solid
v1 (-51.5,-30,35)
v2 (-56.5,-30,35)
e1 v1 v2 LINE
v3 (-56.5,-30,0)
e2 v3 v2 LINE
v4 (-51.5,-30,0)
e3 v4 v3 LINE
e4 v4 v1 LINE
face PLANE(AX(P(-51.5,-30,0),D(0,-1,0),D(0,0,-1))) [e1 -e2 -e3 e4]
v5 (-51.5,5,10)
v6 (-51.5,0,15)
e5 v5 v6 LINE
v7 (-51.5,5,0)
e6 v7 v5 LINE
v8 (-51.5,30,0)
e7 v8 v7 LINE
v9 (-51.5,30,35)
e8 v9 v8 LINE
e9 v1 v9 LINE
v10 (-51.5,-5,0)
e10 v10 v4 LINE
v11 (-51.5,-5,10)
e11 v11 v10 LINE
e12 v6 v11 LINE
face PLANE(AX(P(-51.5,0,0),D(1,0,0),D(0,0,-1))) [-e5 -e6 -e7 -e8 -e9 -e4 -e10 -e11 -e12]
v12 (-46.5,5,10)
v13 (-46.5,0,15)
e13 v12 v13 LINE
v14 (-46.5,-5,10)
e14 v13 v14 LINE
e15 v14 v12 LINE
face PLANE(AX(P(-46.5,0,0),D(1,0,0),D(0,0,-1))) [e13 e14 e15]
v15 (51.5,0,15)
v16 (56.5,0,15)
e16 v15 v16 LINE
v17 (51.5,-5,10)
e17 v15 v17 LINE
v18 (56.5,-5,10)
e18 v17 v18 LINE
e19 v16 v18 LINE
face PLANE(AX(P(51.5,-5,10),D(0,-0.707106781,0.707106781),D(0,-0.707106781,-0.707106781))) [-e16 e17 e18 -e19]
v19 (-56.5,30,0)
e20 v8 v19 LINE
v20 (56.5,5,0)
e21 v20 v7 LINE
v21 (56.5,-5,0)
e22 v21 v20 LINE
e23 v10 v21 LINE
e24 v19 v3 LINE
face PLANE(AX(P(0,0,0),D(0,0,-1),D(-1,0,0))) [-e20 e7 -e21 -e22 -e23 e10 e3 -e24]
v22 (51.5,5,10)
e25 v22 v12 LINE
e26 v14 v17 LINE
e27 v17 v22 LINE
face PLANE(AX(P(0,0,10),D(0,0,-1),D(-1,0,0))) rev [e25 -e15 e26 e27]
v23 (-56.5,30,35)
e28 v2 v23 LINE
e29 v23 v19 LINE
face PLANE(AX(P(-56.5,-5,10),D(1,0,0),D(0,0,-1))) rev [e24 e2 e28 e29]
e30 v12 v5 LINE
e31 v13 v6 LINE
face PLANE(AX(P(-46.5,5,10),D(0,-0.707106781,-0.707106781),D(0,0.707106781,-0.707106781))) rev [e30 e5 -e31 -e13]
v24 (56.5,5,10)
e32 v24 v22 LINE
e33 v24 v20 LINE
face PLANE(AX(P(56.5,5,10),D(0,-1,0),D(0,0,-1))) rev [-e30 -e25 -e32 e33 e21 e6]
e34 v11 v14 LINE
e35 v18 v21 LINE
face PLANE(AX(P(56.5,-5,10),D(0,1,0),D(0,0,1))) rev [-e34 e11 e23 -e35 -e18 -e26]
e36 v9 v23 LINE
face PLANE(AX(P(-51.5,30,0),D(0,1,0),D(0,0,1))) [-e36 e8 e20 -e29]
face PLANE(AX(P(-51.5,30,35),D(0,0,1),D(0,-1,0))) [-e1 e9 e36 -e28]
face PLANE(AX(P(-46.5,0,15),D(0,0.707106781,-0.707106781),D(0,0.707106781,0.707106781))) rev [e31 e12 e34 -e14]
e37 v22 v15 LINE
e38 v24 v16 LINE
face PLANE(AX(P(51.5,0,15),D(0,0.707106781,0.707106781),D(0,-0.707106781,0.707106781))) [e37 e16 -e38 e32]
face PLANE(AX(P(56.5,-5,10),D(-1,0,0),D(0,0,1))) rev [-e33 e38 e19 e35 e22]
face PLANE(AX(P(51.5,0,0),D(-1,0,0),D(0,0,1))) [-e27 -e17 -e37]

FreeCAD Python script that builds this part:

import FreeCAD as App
import Part
import Sketcher
from FreeCAD import Vector
Q = App.Units.Quantity

doc = App.newDocument("Part")
body = doc.addObject("PartDesign::Body", "Body")

sketch1 = body.newObject("Sketcher::SketchObject", "Sketch")
sketch1.AttachmentSupport = (doc.getObject("XY_Plane"), [""])
sketch1.MapMode = "FlatFace"
sketch1.addGeometry(Part.LineSegment(Vector(-56, -5, 0), Vector(56, -5, 0)), False)
sketch1.addGeometry(Part.LineSegment(Vector(56, -5, 0), Vector(56, 5, 0)), False)
sketch1.addGeometry(Part.LineSegment(Vector(56, 5, 0), Vector(-56, 5, 0)), False)
sketch1.addGeometry(Part.LineSegment(Vector(-56, 5, 0), Vector(-56, -5, 0)), False)
sketch1.addConstraint(Sketcher.Constraint("Coincident", 0, 2, 1, 1))
sketch1.addConstraint(Sketcher.Constraint("Coincident", 1, 2, 2, 1))
sketch1.addConstraint(Sketcher.Constraint("Coincident", 2, 2, 3, 1))
sketch1.addConstraint(Sketcher.Constraint("Coincident", 3, 2, 0, 1))
sketch1.addConstraint(Sketcher.Constraint("Horizontal", 0))
sketch1.addConstraint(Sketcher.Constraint("Vertical", 1))
sketch1.addConstraint(Sketcher.Constraint("Horizontal", 2))
sketch1.addConstraint(Sketcher.Constraint("Vertical", 3))
sketch1.addConstraint(Sketcher.Constraint("Symmetric", 0, 2, 2, 2, -1, 1))
sketch1.addConstraint(Sketcher.Constraint("DistanceX", 0, 1, 0, 2, Q("113 mm")))
sketch1.addConstraint(Sketcher.Constraint("DistanceY", 1, 1, 1, 2, Q("10 mm")))
pad1 = body.newObject("PartDesign::Pad", "Pad")
pad1.Profile = sketch1
pad1.Length = 10

sketch2 = body.newObject("Sketcher::SketchObject", "Sketch001")
sketch2.AttachmentSupport = (doc.getObject("YZ_Plane"), [""])
sketch2.MapMode = "FlatFace"
sketch2.AttachmentOffset = App.Placement(Vector(0, 0, 56.5), App.Rotation())
sketch2.addGeometry(Part.LineSegment(Vector(0, 15, 0), Vector(-5, 10, 0)), False)
sketch2.addGeometry(Part.LineSegment(Vector(-5, 10, 0), Vector(5, 10, 0)), False)
sketch2.addGeometry(Part.LineSegment(Vector(5, 10, 0), Vector(0, 15, 0)), False)
sketch2.addConstraint(Sketcher.Constraint("Coincident", 0, 2, 1, 1))
sketch2.addConstraint(Sketcher.Constraint("Coincident", 1, 2, 2, 1))
sketch2.addConstraint(Sketcher.Constraint("Coincident", 2, 2, 0, 1))
sketch2.addConstraint(Sketcher.Constraint("Horizontal", 1))
sketch2.addConstraint(Sketcher.Constraint("PointOnObject", 2, 2, -2))
sketch2.addConstraint(Sketcher.Constraint("Perpendicular", 0, 2))
sketch2.addConstraint(Sketcher.Constraint("Equal", 0, 2))
sketch2.addConstraint(Sketcher.Constraint("DistanceX", 1, 1, 1, 2, Q("10 mm")))
sketch2.addConstraint(Sketcher.Constraint("DistanceY", -1, 1, 0, 2, Q("10 mm")))
pad2 = body.newObject("PartDesign::Pad", "Pad001")
pad2.Profile = sketch2
pad2.Length = 5
pad2.Reversed = True

sketch3 = body.newObject("Sketcher::SketchObject", "Sketch002")
sketch3.AttachmentSupport = (doc.getObject("YZ_Plane"), [""])
sketch3.MapMode = "FlatFace"
sketch3.AttachmentOffset = App.Placement(Vector(0, 0, -56.5), App.Rotation())
sketch3.addGeometry(Part.LineSegment(Vector(30, 35, 0), Vector(30, 0, 0)), False)
sketch3.addGeometry(Part.LineSegment(Vector(30, 0, 0), Vector(-30, 0, 0)), False)
sketch3.addGeometry(Part.LineSegment(Vector(-30, 0, 0), Vector(-30, 35, 0)), False)
sketch3.addGeometry(Part.LineSegment(Vector(-30, 35, 0), Vector(30, 35, 0)), False)
sketch3.addConstraint(Sketcher.Constraint("Coincident", 0, 2, 1, 1))
sketch3.addConstraint(Sketcher.Constraint("Coincident", 1, 2, 2, 1))
sketch3.addConstraint(Sketcher.Constraint("Coincident", 2, 2, 3, 1))
sketch3.addConstraint(Sketcher.Constraint("Coincident", 3, 2, 0, 1))
sketch3.addConstraint(Sketcher.Constraint("Vertical", 0))
sketch3.addConstraint(Sketcher.Constraint("Horizontal", 1))
sketch3.addConstraint(Sketcher.Constraint("Vertical", 2))
sketch3.addConstraint(Sketcher.Constraint("Horizontal", 3))
sketch3.addConstraint(Sketcher.Constraint("Symmetric", 0, 2, 1, 2, -1, 1))
sketch3.addConstraint(Sketcher.Constraint("DistanceX", 1, 2, 1, 1, Q("60 mm")))
sketch3.addConstraint(Sketcher.Constraint("DistanceY", 0, 2, 0, 1, Q("35 mm")))
pad3 = body.newObject("PartDesign::Pad", "Pad002")
pad3.Profile = sketch3
pad3.Length = 5

sketch4 = body.newObject("Sketcher::SketchObject", "Sketch003")
sketch4.AttachmentSupport = (doc.getObject("YZ_Plane"), [""])
sketch4.MapMode = "FlatFace"
sketch4.AttachmentOffset = App.Placement(Vector(0, 0, -51.5), App.Rotation())
sketch4.addGeometry(Part.LineSegment(Vector(5, 10, 0), Vector(0, 15, 0)), False)
sketch4.addGeometry(Part.LineSegment(Vector(0, 15, 0), Vector(-5, 10, 0)), False)
sketch4.addGeometry(Part.LineSegment(Vector(-5, 10, 0), Vector(5, 10, 0)), False)
sketch4.addConstraint(Sketcher.Constraint("Coincident", 0, 2, 1, 1))
sketch4.addConstraint(Sketcher.Constraint("Coincident", 1, 2, 2, 1))
sketch4.addConstraint(Sketcher.Constraint("Coincident", 2, 2, 0, 1))
sketch4.addConstraint(Sketcher.Constraint("Horizontal", 2))
sketch4.addConstraint(Sketcher.Constraint("PointOnObject", 0, 2, -2))
sketch4.addConstraint(Sketcher.Constraint("Perpendicular", 0, 1))
sketch4.addConstraint(Sketcher.Constraint("Equal", 0, 1))
sketch4.addConstraint(Sketcher.Constraint("DistanceX", 2, 1, 2, 2, Q("10 mm")))
sketch4.addConstraint(Sketcher.Constraint("DistanceY", -1, 1, 0, 2, Q("15 mm")))
pad4 = body.newObject("PartDesign::Pad", "Pad003")
pad4.Profile = sketch4
pad4.Length = 5

doc.recompute()
